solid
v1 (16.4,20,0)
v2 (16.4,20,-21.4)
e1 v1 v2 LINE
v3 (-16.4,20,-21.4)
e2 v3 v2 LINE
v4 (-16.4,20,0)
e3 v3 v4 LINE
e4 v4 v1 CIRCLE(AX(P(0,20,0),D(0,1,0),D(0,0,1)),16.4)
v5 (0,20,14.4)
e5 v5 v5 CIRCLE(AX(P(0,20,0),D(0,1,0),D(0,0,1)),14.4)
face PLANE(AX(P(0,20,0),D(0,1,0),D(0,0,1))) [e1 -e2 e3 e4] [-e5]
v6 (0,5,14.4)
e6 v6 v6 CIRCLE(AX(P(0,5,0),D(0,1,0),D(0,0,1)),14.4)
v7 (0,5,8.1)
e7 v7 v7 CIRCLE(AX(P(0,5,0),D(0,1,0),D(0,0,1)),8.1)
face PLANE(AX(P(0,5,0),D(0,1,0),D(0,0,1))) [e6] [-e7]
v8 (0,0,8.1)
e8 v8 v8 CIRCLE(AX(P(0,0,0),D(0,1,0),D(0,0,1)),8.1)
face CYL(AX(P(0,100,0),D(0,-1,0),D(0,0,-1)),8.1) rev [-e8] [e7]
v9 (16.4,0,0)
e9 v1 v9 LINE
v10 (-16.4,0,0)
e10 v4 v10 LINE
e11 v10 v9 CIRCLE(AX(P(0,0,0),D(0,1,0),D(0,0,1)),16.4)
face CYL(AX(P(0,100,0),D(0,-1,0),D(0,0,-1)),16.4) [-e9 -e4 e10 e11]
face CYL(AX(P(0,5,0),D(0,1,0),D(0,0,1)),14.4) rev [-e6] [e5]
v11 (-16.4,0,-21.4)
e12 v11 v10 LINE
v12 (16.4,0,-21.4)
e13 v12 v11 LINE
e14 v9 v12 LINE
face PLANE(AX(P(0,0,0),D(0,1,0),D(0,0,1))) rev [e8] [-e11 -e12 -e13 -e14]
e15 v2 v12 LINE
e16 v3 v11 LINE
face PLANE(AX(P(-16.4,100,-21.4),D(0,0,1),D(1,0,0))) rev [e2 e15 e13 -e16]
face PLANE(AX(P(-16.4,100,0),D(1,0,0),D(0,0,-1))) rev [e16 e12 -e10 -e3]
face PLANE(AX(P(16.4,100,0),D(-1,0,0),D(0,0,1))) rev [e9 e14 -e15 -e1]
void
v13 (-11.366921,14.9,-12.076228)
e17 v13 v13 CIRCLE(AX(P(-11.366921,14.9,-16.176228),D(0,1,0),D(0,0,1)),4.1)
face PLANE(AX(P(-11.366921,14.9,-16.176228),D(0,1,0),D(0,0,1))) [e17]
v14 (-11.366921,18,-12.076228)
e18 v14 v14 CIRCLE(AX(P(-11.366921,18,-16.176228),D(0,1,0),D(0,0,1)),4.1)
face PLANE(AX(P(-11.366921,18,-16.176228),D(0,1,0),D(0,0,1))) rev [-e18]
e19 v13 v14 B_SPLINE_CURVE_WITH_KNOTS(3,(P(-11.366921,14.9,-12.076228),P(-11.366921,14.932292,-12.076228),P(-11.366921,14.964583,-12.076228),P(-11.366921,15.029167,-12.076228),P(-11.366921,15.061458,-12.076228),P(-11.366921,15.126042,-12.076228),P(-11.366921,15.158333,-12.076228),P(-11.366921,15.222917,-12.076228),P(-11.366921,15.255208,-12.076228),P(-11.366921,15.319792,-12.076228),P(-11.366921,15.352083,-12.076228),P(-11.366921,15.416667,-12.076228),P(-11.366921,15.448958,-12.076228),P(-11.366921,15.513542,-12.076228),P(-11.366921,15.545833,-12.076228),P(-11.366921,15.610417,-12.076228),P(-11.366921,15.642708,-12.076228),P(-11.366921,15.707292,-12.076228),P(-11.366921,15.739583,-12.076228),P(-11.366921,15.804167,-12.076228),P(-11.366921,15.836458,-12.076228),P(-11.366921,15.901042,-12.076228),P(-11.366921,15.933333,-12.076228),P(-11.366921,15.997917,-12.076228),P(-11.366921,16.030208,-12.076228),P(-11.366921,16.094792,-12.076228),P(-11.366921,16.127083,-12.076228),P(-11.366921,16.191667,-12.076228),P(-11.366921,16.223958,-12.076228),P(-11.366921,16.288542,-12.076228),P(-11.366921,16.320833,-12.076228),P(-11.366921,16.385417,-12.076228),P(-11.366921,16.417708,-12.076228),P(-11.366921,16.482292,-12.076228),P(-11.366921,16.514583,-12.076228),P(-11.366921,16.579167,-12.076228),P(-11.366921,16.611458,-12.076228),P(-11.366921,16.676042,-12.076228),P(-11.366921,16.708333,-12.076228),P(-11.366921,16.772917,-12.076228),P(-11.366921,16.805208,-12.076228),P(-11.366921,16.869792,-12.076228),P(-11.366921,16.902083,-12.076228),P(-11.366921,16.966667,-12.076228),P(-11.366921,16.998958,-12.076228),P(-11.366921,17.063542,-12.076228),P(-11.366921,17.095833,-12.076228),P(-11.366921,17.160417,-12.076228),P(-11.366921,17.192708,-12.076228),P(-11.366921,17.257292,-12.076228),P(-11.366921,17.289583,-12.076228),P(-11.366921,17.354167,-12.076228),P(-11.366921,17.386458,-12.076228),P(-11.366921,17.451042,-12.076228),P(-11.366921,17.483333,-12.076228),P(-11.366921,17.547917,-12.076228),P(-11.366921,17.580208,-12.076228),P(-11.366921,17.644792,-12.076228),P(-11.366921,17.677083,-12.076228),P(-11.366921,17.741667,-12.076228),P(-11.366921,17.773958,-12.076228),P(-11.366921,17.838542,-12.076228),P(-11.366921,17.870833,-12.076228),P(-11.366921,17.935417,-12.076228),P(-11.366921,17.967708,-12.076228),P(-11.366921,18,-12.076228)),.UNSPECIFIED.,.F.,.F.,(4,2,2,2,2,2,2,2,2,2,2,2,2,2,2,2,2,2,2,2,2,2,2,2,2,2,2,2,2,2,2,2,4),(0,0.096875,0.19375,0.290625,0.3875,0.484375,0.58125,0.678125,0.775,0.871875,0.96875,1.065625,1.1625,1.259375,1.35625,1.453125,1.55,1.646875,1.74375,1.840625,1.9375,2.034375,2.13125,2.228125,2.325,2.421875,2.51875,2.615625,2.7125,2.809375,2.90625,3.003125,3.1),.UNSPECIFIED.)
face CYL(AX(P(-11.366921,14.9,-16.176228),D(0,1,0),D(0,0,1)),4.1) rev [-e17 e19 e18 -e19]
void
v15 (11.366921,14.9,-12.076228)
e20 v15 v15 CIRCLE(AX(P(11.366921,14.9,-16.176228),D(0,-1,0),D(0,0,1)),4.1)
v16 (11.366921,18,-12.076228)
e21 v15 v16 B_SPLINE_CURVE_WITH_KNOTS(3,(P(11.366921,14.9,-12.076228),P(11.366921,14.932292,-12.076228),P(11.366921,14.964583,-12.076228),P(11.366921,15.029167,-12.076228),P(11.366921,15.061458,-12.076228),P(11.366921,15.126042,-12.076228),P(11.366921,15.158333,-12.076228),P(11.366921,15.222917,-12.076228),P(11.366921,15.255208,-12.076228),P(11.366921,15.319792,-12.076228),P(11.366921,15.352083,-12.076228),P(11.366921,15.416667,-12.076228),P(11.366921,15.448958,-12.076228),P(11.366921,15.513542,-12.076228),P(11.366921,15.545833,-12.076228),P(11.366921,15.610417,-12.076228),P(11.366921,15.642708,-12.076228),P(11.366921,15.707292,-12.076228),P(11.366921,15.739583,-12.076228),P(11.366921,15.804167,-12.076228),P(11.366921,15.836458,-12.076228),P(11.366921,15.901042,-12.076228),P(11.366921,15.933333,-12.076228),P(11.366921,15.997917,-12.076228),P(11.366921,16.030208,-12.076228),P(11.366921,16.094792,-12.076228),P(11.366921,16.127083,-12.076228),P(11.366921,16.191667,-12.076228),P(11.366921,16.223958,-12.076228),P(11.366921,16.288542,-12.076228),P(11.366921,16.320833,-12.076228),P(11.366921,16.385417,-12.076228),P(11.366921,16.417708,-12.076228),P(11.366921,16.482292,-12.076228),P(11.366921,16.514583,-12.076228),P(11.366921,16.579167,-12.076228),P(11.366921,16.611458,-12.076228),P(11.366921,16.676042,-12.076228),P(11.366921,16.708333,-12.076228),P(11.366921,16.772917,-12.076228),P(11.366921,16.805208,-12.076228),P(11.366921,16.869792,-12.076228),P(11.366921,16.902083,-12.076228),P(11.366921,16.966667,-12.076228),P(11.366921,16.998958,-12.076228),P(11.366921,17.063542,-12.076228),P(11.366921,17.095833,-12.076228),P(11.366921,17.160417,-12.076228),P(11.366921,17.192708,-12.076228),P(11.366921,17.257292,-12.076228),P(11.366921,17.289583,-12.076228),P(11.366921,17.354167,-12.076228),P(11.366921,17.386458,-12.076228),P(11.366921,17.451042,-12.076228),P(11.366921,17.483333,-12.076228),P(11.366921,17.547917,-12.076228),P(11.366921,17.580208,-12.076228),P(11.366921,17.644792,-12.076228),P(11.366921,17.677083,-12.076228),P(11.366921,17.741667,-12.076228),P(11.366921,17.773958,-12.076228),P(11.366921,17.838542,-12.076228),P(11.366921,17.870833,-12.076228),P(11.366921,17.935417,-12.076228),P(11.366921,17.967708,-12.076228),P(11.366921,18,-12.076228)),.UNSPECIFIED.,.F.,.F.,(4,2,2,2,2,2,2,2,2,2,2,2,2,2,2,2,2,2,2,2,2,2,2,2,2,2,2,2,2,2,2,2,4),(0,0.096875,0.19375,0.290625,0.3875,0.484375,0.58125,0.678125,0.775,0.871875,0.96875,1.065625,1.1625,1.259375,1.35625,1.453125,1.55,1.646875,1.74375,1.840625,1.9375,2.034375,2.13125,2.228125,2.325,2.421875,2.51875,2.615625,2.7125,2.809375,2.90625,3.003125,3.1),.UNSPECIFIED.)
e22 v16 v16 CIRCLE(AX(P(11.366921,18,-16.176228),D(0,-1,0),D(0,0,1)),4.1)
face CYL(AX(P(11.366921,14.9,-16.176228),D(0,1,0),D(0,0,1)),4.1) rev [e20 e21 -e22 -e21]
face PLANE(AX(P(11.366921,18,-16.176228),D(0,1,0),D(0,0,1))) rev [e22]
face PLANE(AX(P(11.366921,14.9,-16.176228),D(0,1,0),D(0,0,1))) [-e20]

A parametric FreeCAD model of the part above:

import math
import FreeCAD as App
import Part
import Sketcher
from FreeCAD import Vector

doc = App.newDocument("Part")
params = doc.addObject("Spreadsheet::Sheet", "Params")
for row, (alias, value) in enumerate([
    ("sketch1_diameter", "16.2 mm"),
    ("sketch1_radius", "16.4 mm"),
    ("sketch1_height", "21.4 mm"),
    ("pad1_length", "100 mm"),
    ("sketch2_diameter", "28.8 mm"),
    ("pocket1_length", "80 mm"),
    ("sketch3_radius", "16.4 mm"),
    ("sketch3_height", "14.4 mm"),
    ("pocket2_length", "80 mm"),
    ("sketch4_diameter", "28.8 mm"),
    ("pocket3_length", "15 mm"),
    ("sketch5_height", "80 mm"),
    ("sketch5_width", "32.8 mm"),
    ("sketch6_diameter", "8.2 mm"),
    ("pocket5_length", "3.1 mm"),
], start=1):
    params.set(f"A{row}", alias)
    params.set(f"B{row}", "=" + value)
    params.setAlias(f"B{row}", alias)

body = doc.addObject("PartDesign::Body", "Body")

# Sketch on XZ plane
sketch1 = body.newObject("Sketcher::SketchObject", "Sketch")
sketch1.AttachmentSupport = (doc.getObject("XZ_Plane"), [""])
sketch1.MapMode = "FlatFace"
sketch1.addGeometry(Part.LineSegment(Vector(-16, -21, 0), Vector(-16, 0, 0)), False)
sketch1.addGeometry(Part.ArcOfCircle(Part.Circle(Vector(0, 0, 0), Vector(0, 0, 1), 16), math.radians(0), math.radians(180)), False)
sketch1.addGeometry(Part.LineSegment(Vector(16, 0, 0), Vector(16, -21, 0)), False)
sketch1.addGeometry(Part.LineSegment(Vector(16, -21, 0), Vector(-16, -21, 0)), False)
sketch1.addGeometry(Part.Circle(Vector(0, 0, 0), Vector(0, 0, 1), 8), False)
sketch1.addConstraint(Sketcher.Constraint("Tangent", 0, 2, 1, 2))
sketch1.addConstraint(Sketcher.Constraint("Tangent", 1, 1, 2, 1))
sketch1.addConstraint(Sketcher.Constraint("Coincident", 2, 2, 3, 1))
sketch1.addConstraint(Sketcher.Constraint("Coincident", 3, 2, 0, 1))
sketch1.addConstraint(Sketcher.Constraint("Vertical", 0))
sketch1.addConstraint(Sketcher.Constraint("Vertical", 2))
sketch1.addConstraint(Sketcher.Constraint("Horizontal", 3))
sketch1.addConstraint(Sketcher.Constraint("Coincident", 1, 3, -1, 1))
sketch1.addConstraint(Sketcher.Constraint("Coincident", 4, 3, -1, 1))
sketch1.addConstraint(Sketcher.Constraint("Diameter", 4, 16.2))
sketch1.addConstraint(Sketcher.Constraint("Radius", 1, 16.4))
sketch1.addConstraint(Sketcher.Constraint("DistanceY", 0, 1, 0, 2, 21.4))
sketch1.setExpression("Constraints[9]", "Params.sketch1_diameter")
sketch1.setExpression("Constraints[10]", "Params.sketch1_radius")
sketch1.setExpression("Constraints[11]", "Params.sketch1_height")
pad1 = body.newObject("PartDesign::Pad", "Pad")
pad1.Profile = sketch1
pad1.setExpression("Length", "Params.pad1_length")
pad1.Reversed = True

# Sketch on XZ plane
sketch2 = body.newObject("Sketcher::SketchObject", "Sketch001")
sketch2.AttachmentSupport = (doc.getObject("XZ_Plane"), [""])
sketch2.MapMode = "FlatFace"
sketch2.AttachmentOffset = App.Placement(Vector(0, 0, -100), App.Rotation())
sketch2.addGeometry(Part.Circle(Vector(0, 0, 0), Vector(0, 0, 1), 14), False)
sketch2.addConstraint(Sketcher.Constraint("Coincident", 0, 3, -1, 1))
sketch2.addConstraint(Sketcher.Constraint("Diameter", 0, 28.8))
sketch2.setExpression("Constraints[1]", "Params.sketch2_diameter")
pocket1 = body.newObject("PartDesign::Pocket", "Pocket")
pocket1.Profile = sketch2
pocket1.setExpression("Length", "Params.pocket1_length")
pocket1.Reversed = True

# Sketch on XZ plane
sketch3 = body.newObject("Sketcher::SketchObject", "Sketch002")
sketch3.AttachmentSupport = (doc.getObject("XZ_Plane"), [""])
sketch3.MapMode = "FlatFace"
sketch3.AttachmentOffset = App.Placement(Vector(0, 0, -20), App.Rotation())
sketch3.addGeometry(Part.LineSegment(Vector(-16, -14, 0), Vector(-16, 0, 0)), False)
sketch3.addGeometry(Part.ArcOfCircle(Part.Circle(Vector(0, 0, 0), Vector(0, 0, 1), 16), math.radians(0), math.radians(180)), False)
sketch3.addGeometry(Part.LineSegment(Vector(16, 0, 0), Vector(16, -14, 0)), False)
sketch3.addGeometry(Part.LineSegment(Vector(16, -14, 0), Vector(-16, -14, 0)), False)
sketch3.addConstraint(Sketcher.Constraint("Tangent", 0, 2, 1, 2))
sketch3.addConstraint(Sketcher.Constraint("Tangent", 1, 1, 2, 1))
sketch3.addConstraint(Sketcher.Constraint("Coincident", 2, 2, 3, 1))
sketch3.addConstraint(Sketcher.Constraint("Coincident", 3, 2, 0, 1))
sketch3.addConstraint(Sketcher.Constraint("Vertical", 0))
sketch3.addConstraint(Sketcher.Constraint("Vertical", 2))
sketch3.addConstraint(Sketcher.Constraint("Horizontal", 3))
sketch3.addConstraint(Sketcher.Constraint("Coincident", 1, 3, -1, 1))
sketch3.addConstraint(Sketcher.Constraint("Radius", 1, 16.4))
sketch3.addConstraint(Sketcher.Constraint("DistanceY", 0, 1, 0, 2, 14.4))
sketch3.setExpression("Constraints[8]", "Params.sketch3_radius")
sketch3.setExpression("Constraints[9]", "Params.sketch3_height")
pocket2 = body.newObject("PartDesign::Pocket", "Pocket001")
pocket2.Profile = sketch3
pocket2.setExpression("Length", "Params.pocket2_length")

# Sketch on XZ plane
sketch4 = body.newObject("Sketcher::SketchObject", "Sketch003")
sketch4.AttachmentSupport = (doc.getObject("XZ_Plane"), [""])
sketch4.MapMode = "FlatFace"
sketch4.AttachmentOffset = App.Placement(Vector(0, 0, -20), App.Rotation())
sketch4.addGeometry(Part.Circle(Vector(0, 0, 0), Vector(0, 0, 1), 14), False)
sketch4.addConstraint(Sketcher.Constraint("Coincident", 0, 3, -1, 1))
sketch4.addConstraint(Sketcher.Constraint("Diameter", 0, 28.8))
sketch4.setExpression("Constraints[1]", "Params.sketch4_diameter")
pocket3 = body.newObject("PartDesign::Pocket", "Pocket002")
pocket3.Profile = sketch4
pocket3.setExpression("Length", "Params.pocket3_length")
pocket3.Reversed = True

# Sketch on XY plane
sketch5 = body.newObject("Sketcher::SketchObject", "Sketch004")
sketch5.AttachmentSupport = (doc.getObject("XY_Plane"), [""])
sketch5.MapMode = "FlatFace"
sketch5.AttachmentOffset = App.Placement(Vector(0, 0, -14.4), App.Rotation())
sketch5.addGeometry(Part.LineSegment(Vector(-16, 100, 0), Vector(-16, 20, 0)), False)
sketch5.addGeometry(Part.LineSegment(Vector(-16, 20, 0), Vector(16, 20, 0)), False)
sketch5.addGeometry(Part.LineSegment(Vector(16, 20, 0), Vector(16, 100, 0)), False)
sketch5.addGeometry(Part.LineSegment(Vector(16, 100, 0), Vector(-16, 100, 0)), False)
sketch5.addConstraint(Sketcher.Constraint("Coincident", 0, 2, 1, 1))
sketch5.addConstraint(Sketcher.Constraint("Coincident", 1, 2, 2, 1))
sketch5.addConstraint(Sketcher.Constraint("Coincident", 2, 2, 3, 1))
sketch5.addConstraint(Sketcher.Constraint("Coincident", 3, 2, 0, 1))
sketch5.addConstraint(Sketcher.Constraint("Vertical", 0))
sketch5.addConstraint(Sketcher.Constraint("Horizontal", 1))
sketch5.addConstraint(Sketcher.Constraint("Vertical", 2))
sketch5.addConstraint(Sketcher.Constraint("Horizontal", 3))
sketch5.addConstraint(Sketcher.Constraint("DistanceY", 0, 2, 0, 1, 80.0))
sketch5.addConstraint(Sketcher.Constraint("DistanceX", 1, 1, 1, 2, 32.8))
sketch5.addConstraint(Sketcher.Constraint("DistanceY", -1, 1, 0, 2, 20.0))
sketch5.addConstraint(Sketcher.Constraint("DistanceX", 0, 2, -1, 1, 16.4))
sketch5.setExpression("Constraints[8]", "Params.sketch5_height")
sketch5.setExpression("Constraints[9]", "Params.sketch5_width")
pocket4 = body.newObject("PartDesign::Pocket", "Pocket003")
pocket4.Profile = sketch5
pocket4.Type = "ThroughAll"

# Sketch on XZ plane
sketch6 = body.newObject("Sketcher::SketchObject", "Sketch005")
sketch6.AttachmentSupport = (doc.getObject("XZ_Plane"), [""])
sketch6.MapMode = "FlatFace"
sketch6.AttachmentOffset = App.Placement(Vector(0, 0, -18), App.Rotation())
sketch6.addGeometry(Part.Circle(Vector(-11.4, -16.2, 0), Vector(0, 0, 1), 4.1), False)
sketch6.addConstraint(Sketcher.Constraint("Diameter", 0, 8.2))
sketch6.addConstraint(Sketcher.Constraint("DistanceX", 0, 3, -1, 1, 11.366921))
sketch6.addConstraint(Sketcher.Constraint("DistanceY", 0, 3, -1, 1, 16.176228))
sketch6.setExpression("Constraints[0]", "Params.sketch6_diameter")
pocket5 = body.newObject("PartDesign::Pocket", "Pocket004")
pocket5.Profile = sketch6
pocket5.setExpression("Length", "Params.pocket5_length")
pocket5.Reversed = True
doc.recompute()

mirrored = body.newObject("PartDesign::Mirrored", "Mirrored")
mirrored.Originals = [pocket5]
mirrored.MirrorPlane = (doc.getObject("YZ_Plane"), [""])
body.Tip = mirrored

doc.recompute()
